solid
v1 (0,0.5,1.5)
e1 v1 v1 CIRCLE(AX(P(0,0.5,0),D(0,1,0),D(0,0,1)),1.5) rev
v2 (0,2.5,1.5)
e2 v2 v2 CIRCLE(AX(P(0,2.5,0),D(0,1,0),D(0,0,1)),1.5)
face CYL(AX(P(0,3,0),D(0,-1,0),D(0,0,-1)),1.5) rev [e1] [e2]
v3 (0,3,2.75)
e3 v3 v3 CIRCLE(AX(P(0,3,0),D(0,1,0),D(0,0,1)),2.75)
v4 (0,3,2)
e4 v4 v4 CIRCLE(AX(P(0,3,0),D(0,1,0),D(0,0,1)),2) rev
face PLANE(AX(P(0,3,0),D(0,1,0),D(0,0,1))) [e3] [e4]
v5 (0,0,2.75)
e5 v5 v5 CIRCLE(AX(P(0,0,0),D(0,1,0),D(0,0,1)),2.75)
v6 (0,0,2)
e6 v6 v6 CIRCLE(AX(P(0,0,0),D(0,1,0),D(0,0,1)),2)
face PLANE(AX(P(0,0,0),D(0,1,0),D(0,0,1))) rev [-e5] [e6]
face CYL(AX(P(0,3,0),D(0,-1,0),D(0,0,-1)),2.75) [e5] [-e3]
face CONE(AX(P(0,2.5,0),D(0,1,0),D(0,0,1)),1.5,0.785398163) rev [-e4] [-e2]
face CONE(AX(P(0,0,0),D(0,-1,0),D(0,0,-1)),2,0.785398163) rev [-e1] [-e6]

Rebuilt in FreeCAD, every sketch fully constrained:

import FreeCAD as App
import Part
import Sketcher
Q = App.Units.Quantity


def edges_at(feature, points):
    """Names of the edges that pass closest to the given points."""
    edges = feature.Shape.Edges
    near = lambda p: min(range(len(edges)), key=lambda i: edges[i].distToShape(Part.Vertex(*p))[0])
    return sorted({f"Edge{near(p) + 1}" for p in points})

doc = App.newDocument("Part")
params = doc.addObject("Spreadsheet::Sheet", "Params")
for row, (alias, value) in enumerate([
    ("sketch1_diameter", "3 mm"),
    ("sketch1_diameter2", "5.5 mm"),
    ("pad1_length", "3 mm"),
    ("chamfer_size", "0.5 mm"),
], start=1):
    params.set(f"A{row}", alias)
    params.set(f"B{row}", "=" + value)
    params.setAlias(f"B{row}", alias)

body = doc.addObject("PartDesign::Body", "Body")

# Sketch on XZ plane
sketch1 = body.newObject("Sketcher::SketchObject", "Sketch")
sketch1.AttachmentSupport = (doc.getObject("XZ_Plane"), [""])
sketch1.MapMode = "FlatFace"
sketch1.addGeometry([
    Part.Circle(App.Vector(0, 0, 0), App.Vector(0, 0, 1), 2.75),
    Part.Circle(App.Vector(0, 0, 0), App.Vector(0, 0, 1), 1.5),
], False)
sketch1.addConstraint([
    Sketcher.Constraint("Coincident", 0, 3, -1, 1),
    Sketcher.Constraint("Coincident", 1, 3, -1, 1),
    Sketcher.Constraint("Diameter", 1, Q("3 mm")),
    Sketcher.Constraint("Diameter", 0, Q("5.5 mm")),
])
sketch1.setExpression("Constraints[2]", "Params.sketch1_diameter")
sketch1.setExpression("Constraints[3]", "Params.sketch1_diameter2")
pad1 = body.newObject("PartDesign::Pad", "Pad")
pad1.Profile = sketch1
pad1.setExpression("Length", "Params.pad1_length")
pad1.Reversed = True
doc.recompute()

chamfer = body.newObject("PartDesign::Chamfer", "Chamfer")
chamfer.Base = (pad1, edges_at(pad1, [(-1.5, 0, 0), (-1.5, 3, 0)]))
chamfer.setExpression("Size", "Params.chamfer_size")

doc.recompute()
